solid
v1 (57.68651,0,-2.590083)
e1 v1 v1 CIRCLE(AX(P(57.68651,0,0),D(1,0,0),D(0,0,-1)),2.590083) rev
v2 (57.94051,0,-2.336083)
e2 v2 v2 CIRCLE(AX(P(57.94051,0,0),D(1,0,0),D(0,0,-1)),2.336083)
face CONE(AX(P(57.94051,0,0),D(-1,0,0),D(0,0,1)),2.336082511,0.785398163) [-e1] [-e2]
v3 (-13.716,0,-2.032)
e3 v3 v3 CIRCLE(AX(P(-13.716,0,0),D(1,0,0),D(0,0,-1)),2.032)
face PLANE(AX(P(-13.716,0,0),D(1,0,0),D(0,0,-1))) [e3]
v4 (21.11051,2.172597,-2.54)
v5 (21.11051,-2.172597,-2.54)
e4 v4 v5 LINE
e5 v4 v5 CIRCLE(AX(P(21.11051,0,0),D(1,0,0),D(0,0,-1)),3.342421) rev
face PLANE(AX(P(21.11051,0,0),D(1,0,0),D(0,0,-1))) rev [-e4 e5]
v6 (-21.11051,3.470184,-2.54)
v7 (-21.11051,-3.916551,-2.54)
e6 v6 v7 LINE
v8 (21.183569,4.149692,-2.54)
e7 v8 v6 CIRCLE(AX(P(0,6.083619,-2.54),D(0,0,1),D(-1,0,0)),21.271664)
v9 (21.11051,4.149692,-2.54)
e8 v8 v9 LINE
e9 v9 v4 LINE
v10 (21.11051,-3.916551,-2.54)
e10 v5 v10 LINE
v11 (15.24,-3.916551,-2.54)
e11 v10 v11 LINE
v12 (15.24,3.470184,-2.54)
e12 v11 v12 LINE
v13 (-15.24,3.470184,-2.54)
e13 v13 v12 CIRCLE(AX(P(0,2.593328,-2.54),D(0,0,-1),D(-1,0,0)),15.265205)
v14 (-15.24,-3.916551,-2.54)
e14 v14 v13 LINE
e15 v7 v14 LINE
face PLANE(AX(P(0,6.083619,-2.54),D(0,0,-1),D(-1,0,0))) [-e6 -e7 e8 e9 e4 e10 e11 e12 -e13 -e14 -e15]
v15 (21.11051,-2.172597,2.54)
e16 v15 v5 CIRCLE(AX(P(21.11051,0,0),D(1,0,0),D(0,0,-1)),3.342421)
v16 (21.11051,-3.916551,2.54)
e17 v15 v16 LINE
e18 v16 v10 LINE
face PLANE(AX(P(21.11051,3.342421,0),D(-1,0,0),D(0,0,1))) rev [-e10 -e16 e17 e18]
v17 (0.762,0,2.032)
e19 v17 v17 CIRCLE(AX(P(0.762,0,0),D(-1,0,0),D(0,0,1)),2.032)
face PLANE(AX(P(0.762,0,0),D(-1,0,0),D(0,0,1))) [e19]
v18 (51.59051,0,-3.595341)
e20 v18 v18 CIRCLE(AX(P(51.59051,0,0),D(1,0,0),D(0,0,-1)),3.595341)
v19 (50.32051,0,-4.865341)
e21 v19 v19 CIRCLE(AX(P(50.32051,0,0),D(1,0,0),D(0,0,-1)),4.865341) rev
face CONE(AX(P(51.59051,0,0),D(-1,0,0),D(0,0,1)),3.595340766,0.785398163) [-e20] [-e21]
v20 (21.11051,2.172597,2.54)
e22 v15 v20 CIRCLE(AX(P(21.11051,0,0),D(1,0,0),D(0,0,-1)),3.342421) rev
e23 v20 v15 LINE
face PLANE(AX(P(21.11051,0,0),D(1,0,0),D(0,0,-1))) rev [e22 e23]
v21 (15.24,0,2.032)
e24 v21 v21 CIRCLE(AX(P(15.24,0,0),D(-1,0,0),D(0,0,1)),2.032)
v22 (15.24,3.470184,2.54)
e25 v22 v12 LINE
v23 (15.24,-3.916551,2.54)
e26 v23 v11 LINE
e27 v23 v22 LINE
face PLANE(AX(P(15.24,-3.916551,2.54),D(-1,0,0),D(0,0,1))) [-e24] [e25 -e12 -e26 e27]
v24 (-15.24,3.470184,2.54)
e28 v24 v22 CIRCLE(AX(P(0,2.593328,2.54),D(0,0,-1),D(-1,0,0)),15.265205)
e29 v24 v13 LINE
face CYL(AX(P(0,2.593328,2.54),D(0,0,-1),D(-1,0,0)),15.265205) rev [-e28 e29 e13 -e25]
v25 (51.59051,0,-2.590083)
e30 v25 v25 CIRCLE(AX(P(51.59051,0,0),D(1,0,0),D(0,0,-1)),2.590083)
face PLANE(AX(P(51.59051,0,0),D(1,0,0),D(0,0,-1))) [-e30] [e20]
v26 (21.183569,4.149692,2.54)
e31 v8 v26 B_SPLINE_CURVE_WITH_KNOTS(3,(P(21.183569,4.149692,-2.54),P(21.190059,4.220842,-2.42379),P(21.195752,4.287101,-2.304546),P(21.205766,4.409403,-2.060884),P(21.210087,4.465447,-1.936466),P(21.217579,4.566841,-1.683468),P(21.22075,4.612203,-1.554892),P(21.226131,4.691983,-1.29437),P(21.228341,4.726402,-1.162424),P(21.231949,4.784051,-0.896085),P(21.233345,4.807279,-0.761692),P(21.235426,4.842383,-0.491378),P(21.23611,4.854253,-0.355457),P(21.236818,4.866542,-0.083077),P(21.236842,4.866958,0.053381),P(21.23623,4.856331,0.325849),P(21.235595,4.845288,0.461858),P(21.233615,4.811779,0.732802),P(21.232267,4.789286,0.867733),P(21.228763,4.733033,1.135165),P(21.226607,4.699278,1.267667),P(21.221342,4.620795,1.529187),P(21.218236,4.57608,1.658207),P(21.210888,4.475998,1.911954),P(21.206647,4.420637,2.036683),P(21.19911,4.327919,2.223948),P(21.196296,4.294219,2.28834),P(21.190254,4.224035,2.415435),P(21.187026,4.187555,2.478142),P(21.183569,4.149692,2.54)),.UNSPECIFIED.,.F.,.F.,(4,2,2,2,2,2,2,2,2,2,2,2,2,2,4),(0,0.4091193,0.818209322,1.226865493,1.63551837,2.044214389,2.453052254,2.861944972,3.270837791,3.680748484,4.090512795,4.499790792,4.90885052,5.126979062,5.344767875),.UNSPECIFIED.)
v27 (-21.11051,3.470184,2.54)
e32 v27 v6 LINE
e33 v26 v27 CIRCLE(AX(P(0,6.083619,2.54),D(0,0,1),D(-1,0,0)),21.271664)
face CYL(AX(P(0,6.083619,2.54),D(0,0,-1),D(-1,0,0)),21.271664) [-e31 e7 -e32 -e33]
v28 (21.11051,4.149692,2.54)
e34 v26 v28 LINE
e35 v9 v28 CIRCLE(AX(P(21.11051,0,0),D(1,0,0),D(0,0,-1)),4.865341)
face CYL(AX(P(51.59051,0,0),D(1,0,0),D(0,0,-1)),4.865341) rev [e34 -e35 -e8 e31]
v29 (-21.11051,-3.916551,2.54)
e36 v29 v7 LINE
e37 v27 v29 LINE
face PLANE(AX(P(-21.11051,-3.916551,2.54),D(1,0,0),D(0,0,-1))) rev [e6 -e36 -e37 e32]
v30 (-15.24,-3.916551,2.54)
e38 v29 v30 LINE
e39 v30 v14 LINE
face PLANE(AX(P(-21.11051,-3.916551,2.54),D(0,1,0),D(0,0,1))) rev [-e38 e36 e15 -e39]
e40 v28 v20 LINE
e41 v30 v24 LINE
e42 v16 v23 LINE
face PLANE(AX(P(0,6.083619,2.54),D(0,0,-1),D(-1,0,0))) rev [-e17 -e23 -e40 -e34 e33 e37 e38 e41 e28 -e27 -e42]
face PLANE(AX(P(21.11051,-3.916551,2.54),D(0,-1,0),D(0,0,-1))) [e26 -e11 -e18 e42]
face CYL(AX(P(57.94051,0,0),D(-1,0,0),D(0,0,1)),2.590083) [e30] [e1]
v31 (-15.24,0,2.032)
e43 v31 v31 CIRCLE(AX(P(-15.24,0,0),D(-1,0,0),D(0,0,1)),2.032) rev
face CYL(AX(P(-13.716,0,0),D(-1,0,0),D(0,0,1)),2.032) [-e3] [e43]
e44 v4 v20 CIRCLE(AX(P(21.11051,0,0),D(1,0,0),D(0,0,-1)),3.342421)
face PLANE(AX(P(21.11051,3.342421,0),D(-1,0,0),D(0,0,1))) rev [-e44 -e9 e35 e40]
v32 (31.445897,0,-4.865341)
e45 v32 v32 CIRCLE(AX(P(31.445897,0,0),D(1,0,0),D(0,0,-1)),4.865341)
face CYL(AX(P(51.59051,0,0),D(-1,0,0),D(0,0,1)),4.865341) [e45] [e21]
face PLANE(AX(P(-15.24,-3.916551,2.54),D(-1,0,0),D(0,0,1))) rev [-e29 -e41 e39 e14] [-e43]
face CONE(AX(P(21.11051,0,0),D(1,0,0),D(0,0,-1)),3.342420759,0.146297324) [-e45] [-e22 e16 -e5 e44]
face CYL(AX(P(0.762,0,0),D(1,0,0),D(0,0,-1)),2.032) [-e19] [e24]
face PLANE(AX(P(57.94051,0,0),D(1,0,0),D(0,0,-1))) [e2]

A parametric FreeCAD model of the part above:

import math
import FreeCAD as App
import Part
import Sketcher
Q = App.Units.Quantity


def edges_at(feature, points):
    """Names of the edges that pass closest to the given points."""
    edges = feature.Shape.Edges
    near = lambda p: min(range(len(edges)), key=lambda i: edges[i].distToShape(Part.Vertex(*p))[0])
    return sorted({f"Edge{near(p) + 1}" for p in points})


def add_polygon(sketch, points):
    """Adds a closed chain of lines whose ends are joined by coincident constraints."""
    first, n = sketch.GeometryCount, len(points)
    for a, b in zip(points, points[1:] + points[:1]):
        sketch.addGeometry(Part.LineSegment(App.Vector(*a, 0), App.Vector(*b, 0)), False)
    for i in range(n):
        sketch.addConstraint(Sketcher.Constraint("Coincident", first + i, 2, first + (i + 1) % n, 1))

doc = App.newDocument("Part")
body = doc.addObject("PartDesign::Body", "Body")

# Sketch on XY plane
sketch1 = body.newObject("Sketcher::SketchObject", "Sketch")
sketch1.AttachmentSupport = (doc.getObject("XY_Plane"), [""])
sketch1.MapMode = "FlatFace"
sketch1.addGeometry([
    Part.LineSegment(App.Vector(-21.11051, -3.916551, 0), App.Vector(-15.24, -3.916551, 0)),  # 0
    Part.LineSegment(App.Vector(-15.24, -3.916551, 0), App.Vector(-15.24, 3.470184, 0)),  # 1
    Part.ArcOfCircle(Part.Circle(App.Vector(0, 2.593328, 0), App.Vector(0, 0, 1), 15.265205), math.radians(90), math.radians(176.707035)),  # 2
    Part.LineSegment(App.Vector(0, 17.858533, 0), App.Vector(0, 27.355283, 0)),  # 3
    Part.ArcOfCircle(Part.Circle(App.Vector(0, 6.083619, 0), App.Vector(0, 0, 1), 21.271664), math.radians(90), math.radians(187.057187)),  # 4
    Part.LineSegment(App.Vector(-21.11051, 3.470184, 0), App.Vector(-21.11051, -3.916551, 0)),  # 5
], False)
sketch1.addConstraint([
    Sketcher.Constraint("Coincident", 0, 2, 1, 1),
    Sketcher.Constraint("Coincident", 1, 2, 2, 2),
    Sketcher.Constraint("Coincident", 2, 1, 3, 1),
    Sketcher.Constraint("Coincident", 3, 2, 4, 1),
    Sketcher.Constraint("Coincident", 4, 2, 5, 1),
    Sketcher.Constraint("Coincident", 5, 2, 0, 1),
    Sketcher.Constraint("Horizontal", 0),
    Sketcher.Constraint("Vertical", 1),
    Sketcher.Constraint("Vertical", 3),
    Sketcher.Constraint("Vertical", 5),
    Sketcher.Constraint("PointOnObject", 2, 3, -2),
    Sketcher.Constraint("PointOnObject", 4, 3, -2),
    Sketcher.Constraint("PointOnObject", 2, 1, -2),
    Sketcher.Constraint("Horizontal", 1, 2, 4, 2),
    Sketcher.Constraint("DistanceX", 0, 2, -1, 1, Q("0.6 in")),
    Sketcher.Constraint("Radius", 2, 15.265205),
    Sketcher.Constraint("Radius", 4, 21.271664),
    Sketcher.Constraint("DistanceX", 0, 1, 0, 2, 5.87051),
    Sketcher.Constraint("DistanceY", 1, 1, 1, 2, 7.386735),
    Sketcher.Constraint("DistanceY", -1, 1, 2, 3, 2.593328),
])
pad1 = body.newObject("PartDesign::Pad", "Pad")
pad1.Profile = sketch1
pad1.Length = Q("0.2 in")
pad1.Midplane = True
doc.recompute()

mirrored = body.newObject("PartDesign::Mirrored", "Mirrored")
mirrored.Originals = [pad1]
mirrored.MirrorPlane = (doc.getObject("YZ_Plane"), [""])
body.Tip = mirrored

# Sketch on YZ plane
sketch2 = body.newObject("Sketcher::SketchObject", "Sketch001")
sketch2.AttachmentSupport = (doc.getObject("YZ_Plane"), [""])
sketch2.MapMode = "FlatFace"
sketch2.AttachmentOffset = App.Placement(App.Vector(0, 0, 21.11051), App.Rotation())
sketch2.addGeometry(Part.Circle(App.Vector(0, 0, 0), App.Vector(0, 0, 1), 4.865341), False)
sketch2.addConstraint([
    Sketcher.Constraint("Coincident", 0, 3, -1, 1),
    Sketcher.Constraint("Diameter", 0, 9.730682),
])
pad2 = body.newObject("PartDesign::Pad", "Pad001")
pad2.Profile = sketch2
pad2.Length = Q("1.2 in")

# Sketch on XY plane
sketch3 = body.newObject("Sketcher::SketchObject", "Sketch002")
sketch3.AttachmentSupport = (doc.getObject("XY_Plane"), [""])
sketch3.MapMode = "FlatFace"
add_polygon(sketch3, [(21.11051, 4.865341), (21.11051, 3.342421), (31.445897, 4.865341)])  # lines 0-2
sketch3.addConstraint([
    Sketcher.Constraint("Vertical", 0),
    Sketcher.Constraint("Horizontal", 2),
    Sketcher.Constraint("DistanceY", 0, 2, 0, 1, 1.52292),
    Sketcher.Constraint("DistanceX", 2, 2, 2, 1, 10.335387),
    Sketcher.Constraint("DistanceX", -1, 1, 0, 2, 21.11051),
    Sketcher.Constraint("DistanceY", -1, 1, 0, 2, 3.342421),
])
groove = body.newObject("PartDesign::Groove", "Groove")
groove.Profile = sketch3
groove.ReferenceAxis = (sketch3, ["H_Axis"])
groove.Angle = 360
doc.recompute()

chamfer = body.newObject("PartDesign::Chamfer", "Chamfer")
chamfer.Base = (groove, edges_at(groove, [(51.591, 0, 4.865)]))
chamfer.Size = Q("0.05 in")

# Sketch on YZ plane
sketch4 = body.newObject("Sketcher::SketchObject", "Sketch003")
sketch4.AttachmentSupport = (doc.getObject("YZ_Plane"), [""])
sketch4.MapMode = "FlatFace"
sketch4.AttachmentOffset = App.Placement(App.Vector(0, 0, 51.59051), App.Rotation())
sketch4.addGeometry(Part.Circle(App.Vector(0, 0, 0), App.Vector(0, 0, 1), 2.590083), False)
sketch4.addConstraint([
    Sketcher.Constraint("Coincident", 0, 3, -1, 1),
    Sketcher.Constraint("Diameter", 0, 5.180165),
])
pad3 = body.newObject("PartDesign::Pad", "Pad002")
pad3.Profile = sketch4
pad3.Length = Q("0.25 in")
doc.recompute()

chamfer2 = body.newObject("PartDesign::Chamfer", "Chamfer001")
chamfer2.Base = (pad3, edges_at(pad3, [(57.941, 0, 2.59)]))
chamfer2.Size = Q("0.01 in")

# Sketch on YZ plane
sketch5 = body.newObject("Sketcher::SketchObject", "Sketch004")
sketch5.AttachmentSupport = (doc.getObject("YZ_Plane"), [""])
sketch5.MapMode = "FlatFace"
sketch5.AttachmentOffset = App.Placement(App.Vector(0, 0, -0.6 * 25.4), App.Rotation())
sketch5.addGeometry(Part.Circle(App.Vector(0, 0, 0), App.Vector(0, 0, 1), 2.032), False)
sketch5.addConstraint([
    Sketcher.Constraint("Coincident", 0, 3, -1, 1),
    Sketcher.Constraint("Diameter", 0, Q("0.16 in")),
])
pad4 = body.newObject("PartDesign::Pad", "Pad003")
pad4.Profile = sketch5
pad4.Length = Q("0.06 in")

# Sketch on YZ plane
sketch6 = body.newObject("Sketcher::SketchObject", "Sketch005")
sketch6.AttachmentSupport = (doc.getObject("YZ_Plane"), [""])
sketch6.MapMode = "FlatFace"
sketch6.AttachmentOffset = App.Placement(App.Vector(0, 0, 0.6 * 25.4), App.Rotation())
sketch6.addGeometry(Part.Circle(App.Vector(0, 0, 0), App.Vector(0, 0, 1), 2.032), False)
sketch6.addConstraint([
    Sketcher.Constraint("Coincident", 0, 3, -1, 1),
    Sketcher.Constraint("Diameter", 0, Q("0.16 in")),
])
pad5 = body.newObject("PartDesign::Pad", "Pad004")
pad5.Profile = sketch6
pad5.Length = Q("0.57 in")
pad5.Reversed = True

doc.recompute()
